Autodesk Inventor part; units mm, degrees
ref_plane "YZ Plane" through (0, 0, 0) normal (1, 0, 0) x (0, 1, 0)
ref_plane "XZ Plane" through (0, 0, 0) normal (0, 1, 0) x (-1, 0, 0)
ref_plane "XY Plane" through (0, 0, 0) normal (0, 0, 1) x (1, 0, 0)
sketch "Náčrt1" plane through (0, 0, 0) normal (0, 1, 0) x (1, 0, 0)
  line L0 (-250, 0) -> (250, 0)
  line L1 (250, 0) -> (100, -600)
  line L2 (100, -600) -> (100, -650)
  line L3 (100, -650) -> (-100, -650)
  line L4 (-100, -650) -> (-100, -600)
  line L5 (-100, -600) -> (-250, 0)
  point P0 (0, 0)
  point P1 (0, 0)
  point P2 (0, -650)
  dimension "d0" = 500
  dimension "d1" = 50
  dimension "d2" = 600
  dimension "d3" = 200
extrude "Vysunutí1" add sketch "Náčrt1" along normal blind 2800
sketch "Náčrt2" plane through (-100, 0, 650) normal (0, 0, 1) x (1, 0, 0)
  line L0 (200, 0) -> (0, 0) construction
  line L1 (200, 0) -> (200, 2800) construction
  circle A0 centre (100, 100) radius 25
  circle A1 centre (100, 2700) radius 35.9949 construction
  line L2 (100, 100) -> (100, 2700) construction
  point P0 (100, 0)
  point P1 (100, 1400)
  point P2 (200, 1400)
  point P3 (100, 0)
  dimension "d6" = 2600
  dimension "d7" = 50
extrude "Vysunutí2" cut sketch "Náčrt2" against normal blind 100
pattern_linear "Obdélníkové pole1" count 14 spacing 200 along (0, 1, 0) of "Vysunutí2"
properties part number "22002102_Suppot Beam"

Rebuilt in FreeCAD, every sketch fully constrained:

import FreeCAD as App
import Part
import Sketcher

V = App.Vector

doc = App.newDocument("Part")
body = doc.addObject("PartDesign::Body", "Body")

# Sketch on XZ plane
sketch1 = body.newObject("Sketcher::SketchObject", "Sketch")
sketch1.AttachmentSupport = (doc.getObject("XZ_Plane"), [""])
sketch1.MapMode = "FlatFace"
sketch1.addGeometry([
    Part.LineSegment(V(250, 0, 0), V(-250, 0, 0)),  # 0
    Part.LineSegment(V(-250, 0, 0), V(-100, 600, 0)),  # 1
    Part.LineSegment(V(-100, 600, 0), V(-100, 650, 0)),  # 2
    Part.LineSegment(V(-100, 650, 0), V(100, 650, 0)),  # 3
    Part.LineSegment(V(100, 650, 0), V(100, 600, 0)),  # 4
    Part.LineSegment(V(100, 600, 0), V(250, 0, 0)),  # 5
], False)
sketch1.addConstraint([
    Sketcher.Constraint("Coincident", 0, 2, 1, 1),
    Sketcher.Constraint("Coincident", 1, 2, 2, 1),
    Sketcher.Constraint("Coincident", 2, 2, 3, 1),
    Sketcher.Constraint("Coincident", 3, 2, 4, 1),
    Sketcher.Constraint("Coincident", 4, 2, 5, 1),
    Sketcher.Constraint("Coincident", 5, 2, 0, 1),
    Sketcher.Constraint("Horizontal", 0),
    Sketcher.Constraint("Vertical", 2),
    Sketcher.Constraint("Horizontal", 3),
    Sketcher.Constraint("Vertical", 4),
    Sketcher.Constraint("Symmetric", 0, 2, 5, 2, -1, 1),
    Sketcher.Constraint("Symmetric", 1, 2, 4, 2, -2),
    Sketcher.Constraint("DistanceX", 0, 2, 0, 1, 500.0),
    Sketcher.Constraint("DistanceX", 3, 1, 3, 2, 200.0),
    Sketcher.Constraint("DistanceY", 2, 1, 2, 2, 50.0),
    Sketcher.Constraint("DistanceY", -1, 1, 1, 2, 600.0),
])
pad1 = body.newObject("PartDesign::Pad", "Pad")
pad1.Profile = sketch1
pad1.Length = 2800
pad1.Reversed = True

# Sketch on XY plane
sketch2 = body.newObject("Sketcher::SketchObject", "Sketch001")
sketch2.AttachmentSupport = (doc.getObject("XY_Plane"), [""])
sketch2.MapMode = "FlatFace"
sketch2.AttachmentOffset = App.Placement(V(0, 0, 650), App.Rotation())
sketch2.addGeometry(Part.Circle(V(0, 100, 0), V(0, 0, 1), 25), False)
sketch2.addConstraint([
    Sketcher.Constraint("PointOnObject", 0, 3, -2),
    Sketcher.Constraint("Diameter", 0, 50.0),
    Sketcher.Constraint("DistanceY", -1, 1, 0, 3, 100.0),
])
pocket1 = body.newObject("PartDesign::Pocket", "Pocket")
pocket1.Profile = sketch2
pocket1.Length = 100
doc.recompute()

linearpattern = body.newObject("PartDesign::LinearPattern", "LinearPattern")
linearpattern.Originals = [pocket1]
linearpattern.Direction = (doc.getObject("Y_Axis"), [""])
linearpattern.Mode = "offset"
linearpattern.Offset = 200
linearpattern.Occurrences = 14
body.Tip = linearpattern

doc.recompute()
